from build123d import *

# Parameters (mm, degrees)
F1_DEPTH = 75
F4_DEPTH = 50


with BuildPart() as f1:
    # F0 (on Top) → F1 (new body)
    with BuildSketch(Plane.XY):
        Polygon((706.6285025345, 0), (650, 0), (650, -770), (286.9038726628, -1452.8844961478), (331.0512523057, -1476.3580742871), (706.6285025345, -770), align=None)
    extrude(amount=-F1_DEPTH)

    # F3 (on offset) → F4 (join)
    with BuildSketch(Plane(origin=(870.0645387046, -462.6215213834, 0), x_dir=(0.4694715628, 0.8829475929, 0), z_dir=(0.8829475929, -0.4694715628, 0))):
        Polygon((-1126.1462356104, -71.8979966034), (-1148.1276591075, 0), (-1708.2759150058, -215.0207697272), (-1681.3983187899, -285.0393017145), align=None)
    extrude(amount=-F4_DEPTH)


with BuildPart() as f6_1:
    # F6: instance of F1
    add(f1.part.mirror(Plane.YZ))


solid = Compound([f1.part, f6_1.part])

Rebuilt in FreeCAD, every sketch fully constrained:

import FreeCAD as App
import Part
import Sketcher

V = App.Vector
Q = App.Units.Quantity


def add_polygon(sketch, points):
    """Adds a closed chain of lines whose ends are joined by coincident constraints."""
    first, n = sketch.GeometryCount, len(points)
    for a, b in zip(points, points[1:] + points[:1]):
        sketch.addGeometry(Part.LineSegment(App.Vector(*a, 0), App.Vector(*b, 0)), False)
    for i in range(n):
        sketch.addConstraint(Sketcher.Constraint("Coincident", first + i, 2, first + (i + 1) % n, 1))

doc = App.newDocument("Part")
body = doc.addObject("PartDesign::Body", "Body")

# Sketch on XY plane
sketch1 = doc.addObject("Sketcher::SketchObject", "Sketch")
body.addObject(sketch1)
sketch1.AttachmentSupport = (doc.XY_Plane, [""])
sketch1.MapMode = "FlatFace"
add_polygon(sketch1, [(707, 0), (650, 0), (650, -770), (287, -1453), (331, -1476), (707, -770)])  # lines 0-5
sketch1.addConstraint(Sketcher.Constraint("Horizontal", 0))
sketch1.addConstraint(Sketcher.Constraint("Vertical", 1))
sketch1.addConstraint(Sketcher.Constraint("Vertical", 5))
sketch1.addConstraint(Sketcher.Constraint("PointOnObject", 0, 2, -1))
sketch1.addConstraint(Sketcher.Constraint("Perpendicular", 2, 3))
sketch1.addConstraint(Sketcher.Constraint("Perpendicular", 3, 4))
sketch1.addConstraint(Sketcher.Constraint("Horizontal", 1, 2, 4, 2))
sketch1.addConstraint(Sketcher.Constraint("DistanceY", 1, 2, 1, 1, 770.0))
sketch1.addConstraint(Sketcher.Constraint("Angle", 2, Q("-118 deg")))
sketch1.addConstraint(Sketcher.Constraint("Distance", 3, 50.0))
sketch1.addConstraint(Sketcher.Constraint("Distance", 4, 800.0))
sketch1.addConstraint(Sketcher.Constraint("DistanceX", -1, 1, 0, 2, 650.0))
pad1 = doc.addObject("PartDesign::Pad", "Pad")
body.addObject(pad1)
pad1.Profile = sketch1
pad1.Length = 75
pad1.Reversed = True

# Sketch on an angled plane
sketch2 = doc.addObject("Sketcher::SketchObject", "Sketch001")
body.addObject(sketch2)
sketch2.Placement = App.Placement(V(870.064539, -462.621521, 0), App.Rotation(V(0.469471563, 0.882947593, 0), V(0, 0, 1), V(0.882947593, -0.469471563, 0), "ZXY"))
add_polygon(sketch2, [(-1126, -72), (-1148, 0), (-1708, -215), (-1681, -285)])  # lines 0-3
sketch2.addConstraint(Sketcher.Constraint("PointOnObject", 0, 2, -1))
sketch2.addConstraint(Sketcher.Constraint("Perpendicular", 1, 2))
sketch2.addConstraint(Sketcher.Constraint("Perpendicular", 2, 3))
sketch2.addConstraint(Sketcher.Constraint("Angle", 0, Q("107 deg")))
sketch2.addConstraint(Sketcher.Constraint("Angle", 1, Q("-159 deg")))
sketch2.addConstraint(Sketcher.Constraint("Distance", 1, 600.0))
sketch2.addConstraint(Sketcher.Constraint("Distance", 2, 75.0))
sketch2.addConstraint(Sketcher.Constraint("DistanceX", 0, 2, -1, 1, 1148.12766))
pad2 = doc.addObject("PartDesign::Pad", "Pad001")
body.addObject(pad2)
pad2.Profile = sketch2
pad2.Length = 50
pad2.Reversed = True
body2 = doc.addObject("PartDesign::Body", "Body001")
doc.recompute()

mirroring = doc.addObject("Part::Mirroring", "Mirroring")
mirroring.Source = body
mirroring.Base = V(0, 0, 0)
mirroring.Normal = V(1, 0, 0)
body2.BaseFeature = mirroring
doc.recompute()
mirroring.Visibility = False

doc.recompute()
